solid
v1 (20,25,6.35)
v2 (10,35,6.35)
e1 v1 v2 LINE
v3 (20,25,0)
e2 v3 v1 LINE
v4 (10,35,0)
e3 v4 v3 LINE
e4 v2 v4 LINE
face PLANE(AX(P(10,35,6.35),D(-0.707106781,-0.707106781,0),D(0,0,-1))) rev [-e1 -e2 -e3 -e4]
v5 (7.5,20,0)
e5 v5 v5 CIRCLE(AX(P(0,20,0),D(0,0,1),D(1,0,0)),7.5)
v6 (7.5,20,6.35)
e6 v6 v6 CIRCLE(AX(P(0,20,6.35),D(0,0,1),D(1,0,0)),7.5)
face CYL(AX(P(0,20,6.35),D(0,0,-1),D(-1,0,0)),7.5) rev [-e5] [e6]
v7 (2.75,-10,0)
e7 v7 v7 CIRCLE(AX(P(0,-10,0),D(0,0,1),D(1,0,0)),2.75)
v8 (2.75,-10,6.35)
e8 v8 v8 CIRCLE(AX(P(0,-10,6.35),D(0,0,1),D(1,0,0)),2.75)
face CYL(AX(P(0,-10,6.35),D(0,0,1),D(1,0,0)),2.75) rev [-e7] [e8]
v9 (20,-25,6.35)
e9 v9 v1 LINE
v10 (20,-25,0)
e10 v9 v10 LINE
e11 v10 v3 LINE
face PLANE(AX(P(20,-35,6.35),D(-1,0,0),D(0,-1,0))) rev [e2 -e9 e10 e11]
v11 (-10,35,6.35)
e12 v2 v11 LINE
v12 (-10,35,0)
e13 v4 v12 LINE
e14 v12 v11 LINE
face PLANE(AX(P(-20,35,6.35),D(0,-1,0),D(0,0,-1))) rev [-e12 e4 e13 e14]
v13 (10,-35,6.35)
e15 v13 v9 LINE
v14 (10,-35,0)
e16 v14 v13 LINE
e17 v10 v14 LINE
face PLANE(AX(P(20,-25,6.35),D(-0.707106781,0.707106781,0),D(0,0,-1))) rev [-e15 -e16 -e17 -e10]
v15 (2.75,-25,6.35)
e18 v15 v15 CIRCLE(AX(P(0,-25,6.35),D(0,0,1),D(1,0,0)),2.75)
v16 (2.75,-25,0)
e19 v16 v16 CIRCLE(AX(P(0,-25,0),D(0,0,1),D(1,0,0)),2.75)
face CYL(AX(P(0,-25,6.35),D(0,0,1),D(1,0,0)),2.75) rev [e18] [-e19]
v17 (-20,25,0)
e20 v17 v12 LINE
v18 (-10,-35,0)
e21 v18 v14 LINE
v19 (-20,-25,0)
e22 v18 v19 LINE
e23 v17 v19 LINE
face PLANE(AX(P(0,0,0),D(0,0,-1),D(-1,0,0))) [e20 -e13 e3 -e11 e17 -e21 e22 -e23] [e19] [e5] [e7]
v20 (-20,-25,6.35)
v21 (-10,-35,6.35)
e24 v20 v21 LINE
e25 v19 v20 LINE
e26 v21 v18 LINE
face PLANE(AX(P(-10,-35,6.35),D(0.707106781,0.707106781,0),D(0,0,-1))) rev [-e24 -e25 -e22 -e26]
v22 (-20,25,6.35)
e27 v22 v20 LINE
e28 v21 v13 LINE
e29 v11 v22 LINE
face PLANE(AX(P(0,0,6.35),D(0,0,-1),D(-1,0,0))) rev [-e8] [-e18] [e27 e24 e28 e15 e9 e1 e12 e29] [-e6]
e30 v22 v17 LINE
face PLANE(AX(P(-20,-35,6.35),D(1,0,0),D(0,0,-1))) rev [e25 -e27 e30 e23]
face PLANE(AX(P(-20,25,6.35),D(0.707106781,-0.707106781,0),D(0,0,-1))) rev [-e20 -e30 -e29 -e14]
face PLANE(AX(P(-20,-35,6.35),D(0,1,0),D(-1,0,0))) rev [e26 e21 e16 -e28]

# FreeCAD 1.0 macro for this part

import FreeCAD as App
import Part
import Sketcher
Q = App.Units.Quantity


def edges_at(feature, points):
    """Names of the edges that pass closest to the given points."""
    edges = feature.Shape.Edges
    near = lambda p: min(range(len(edges)), key=lambda i: edges[i].distToShape(Part.Vertex(*p))[0])
    return sorted({f"Edge{near(p) + 1}" for p in points})

doc = App.newDocument("Part")
params = doc.addObject("Spreadsheet::Sheet", "Params")
for row, (alias, value) in enumerate([
    ("sketch1_diameter", "15 mm"),
    ("sketch1_width", "40 mm"),
    ("sketch1_height", "70 mm"),
    ("pad1_length", "6.35 mm"),
    ("sketch2_diameter", "5.5 mm"),
    ("hole_diameter", "5.5 mm"),
    ("chamfer_size", "10 mm"),
], start=1):
    params.set(f"A{row}", alias)
    params.set(f"B{row}", "=" + value)
    params.setAlias(f"B{row}", alias)

body = doc.addObject("PartDesign::Body", "Body")

# Sketch on XY plane
sketch1 = body.newObject("Sketcher::SketchObject", "Sketch")
sketch1.AttachmentSupport = (doc.getObject("XY_Plane"), [""])
sketch1.MapMode = "FlatFace"
sketch1.addGeometry(Part.LineSegment(App.Vector(-20, 35, 0), App.Vector(-20, -35, 0)), False)
sketch1.addGeometry(Part.LineSegment(App.Vector(-20, -35, 0), App.Vector(20, -35, 0)), False)
sketch1.addGeometry(Part.LineSegment(App.Vector(20, -35, 0), App.Vector(20, 35, 0)), False)
sketch1.addGeometry(Part.LineSegment(App.Vector(20, 35, 0), App.Vector(-20, 35, 0)), False)
sketch1.addGeometry(Part.Circle(App.Vector(0, 20, 0), App.Vector(0, 0, 1), 8), False)
sketch1.addConstraint(Sketcher.Constraint("Coincident", 0, 2, 1, 1))
sketch1.addConstraint(Sketcher.Constraint("Coincident", 1, 2, 2, 1))
sketch1.addConstraint(Sketcher.Constraint("Coincident", 2, 2, 3, 1))
sketch1.addConstraint(Sketcher.Constraint("Coincident", 3, 2, 0, 1))
sketch1.addConstraint(Sketcher.Constraint("Vertical", 0))
sketch1.addConstraint(Sketcher.Constraint("Horizontal", 1))
sketch1.addConstraint(Sketcher.Constraint("Vertical", 2))
sketch1.addConstraint(Sketcher.Constraint("Horizontal", 3))
sketch1.addConstraint(Sketcher.Constraint("Symmetric", 0, 2, 2, 2, -1, 1))
sketch1.addConstraint(Sketcher.Constraint("PointOnObject", 4, 3, -2))
sketch1.addConstraint(Sketcher.Constraint("Diameter", 4, Q("15 mm")))
sketch1.addConstraint(Sketcher.Constraint("DistanceX", 1, 1, 1, 2, Q("40 mm")))
sketch1.addConstraint(Sketcher.Constraint("DistanceY", 0, 2, 0, 1, Q("70 mm")))
sketch1.addConstraint(Sketcher.Constraint("DistanceY", -1, 1, 4, 3, Q("20 mm")))
sketch1.setExpression("Constraints[10]", "Params.sketch1_diameter")
sketch1.setExpression("Constraints[11]", "Params.sketch1_width")
sketch1.setExpression("Constraints[12]", "Params.sketch1_height")
pad1 = body.newObject("PartDesign::Pad", "Pad")
pad1.Profile = sketch1
pad1.setExpression("Length", "Params.pad1_length")

# Sketch on XY plane
sketch2 = body.newObject("Sketcher::SketchObject", "Sketch001")
sketch2.AttachmentSupport = (doc.getObject("XY_Plane"), [""])
sketch2.MapMode = "FlatFace"
sketch2.AttachmentOffset = App.Placement(App.Vector(0, 0, 6.35), App.Rotation())
sketch2.addGeometry(Part.Circle(App.Vector(0, -10, 0), App.Vector(0, 0, 1), 2.8), False)
sketch2.addGeometry(Part.Circle(App.Vector(0, -25, 0), App.Vector(0, 0, 1), 2.8), False)
sketch2.addConstraint(Sketcher.Constraint("Equal", 0, 1))
sketch2.addConstraint(Sketcher.Constraint("PointOnObject", 0, 3, -2))
sketch2.addConstraint(Sketcher.Constraint("PointOnObject", 1, 3, -2))
sketch2.addConstraint(Sketcher.Constraint("Diameter", 0, Q("5.5 mm")))
sketch2.addConstraint(Sketcher.Constraint("DistanceY", 0, 3, -1, 1, Q("10 mm")))
sketch2.addConstraint(Sketcher.Constraint("DistanceY", 1, 3, -1, 1, Q("25 mm")))
sketch2.setExpression("Constraints[3]", "Params.sketch2_diameter")
doc.recompute()
hole = body.newObject("PartDesign::Hole", "Hole")
hole.Profile = sketch2
hole.ThreadType = "None"
hole.setExpression("Diameter", "Params.hole_diameter")
hole.DepthType = "ThroughAll"
doc.recompute()

chamfer = body.newObject("PartDesign::Chamfer", "Chamfer")
chamfer.Base = (hole, edges_at(hole, [
    (-20, 35, 3.175),
    (20, 35, 3.175),
    (20, -35, 3.175),
    (-20, -35, 3.175),
]))
chamfer.setExpression("Size", "Params.chamfer_size")

doc.recompute()
